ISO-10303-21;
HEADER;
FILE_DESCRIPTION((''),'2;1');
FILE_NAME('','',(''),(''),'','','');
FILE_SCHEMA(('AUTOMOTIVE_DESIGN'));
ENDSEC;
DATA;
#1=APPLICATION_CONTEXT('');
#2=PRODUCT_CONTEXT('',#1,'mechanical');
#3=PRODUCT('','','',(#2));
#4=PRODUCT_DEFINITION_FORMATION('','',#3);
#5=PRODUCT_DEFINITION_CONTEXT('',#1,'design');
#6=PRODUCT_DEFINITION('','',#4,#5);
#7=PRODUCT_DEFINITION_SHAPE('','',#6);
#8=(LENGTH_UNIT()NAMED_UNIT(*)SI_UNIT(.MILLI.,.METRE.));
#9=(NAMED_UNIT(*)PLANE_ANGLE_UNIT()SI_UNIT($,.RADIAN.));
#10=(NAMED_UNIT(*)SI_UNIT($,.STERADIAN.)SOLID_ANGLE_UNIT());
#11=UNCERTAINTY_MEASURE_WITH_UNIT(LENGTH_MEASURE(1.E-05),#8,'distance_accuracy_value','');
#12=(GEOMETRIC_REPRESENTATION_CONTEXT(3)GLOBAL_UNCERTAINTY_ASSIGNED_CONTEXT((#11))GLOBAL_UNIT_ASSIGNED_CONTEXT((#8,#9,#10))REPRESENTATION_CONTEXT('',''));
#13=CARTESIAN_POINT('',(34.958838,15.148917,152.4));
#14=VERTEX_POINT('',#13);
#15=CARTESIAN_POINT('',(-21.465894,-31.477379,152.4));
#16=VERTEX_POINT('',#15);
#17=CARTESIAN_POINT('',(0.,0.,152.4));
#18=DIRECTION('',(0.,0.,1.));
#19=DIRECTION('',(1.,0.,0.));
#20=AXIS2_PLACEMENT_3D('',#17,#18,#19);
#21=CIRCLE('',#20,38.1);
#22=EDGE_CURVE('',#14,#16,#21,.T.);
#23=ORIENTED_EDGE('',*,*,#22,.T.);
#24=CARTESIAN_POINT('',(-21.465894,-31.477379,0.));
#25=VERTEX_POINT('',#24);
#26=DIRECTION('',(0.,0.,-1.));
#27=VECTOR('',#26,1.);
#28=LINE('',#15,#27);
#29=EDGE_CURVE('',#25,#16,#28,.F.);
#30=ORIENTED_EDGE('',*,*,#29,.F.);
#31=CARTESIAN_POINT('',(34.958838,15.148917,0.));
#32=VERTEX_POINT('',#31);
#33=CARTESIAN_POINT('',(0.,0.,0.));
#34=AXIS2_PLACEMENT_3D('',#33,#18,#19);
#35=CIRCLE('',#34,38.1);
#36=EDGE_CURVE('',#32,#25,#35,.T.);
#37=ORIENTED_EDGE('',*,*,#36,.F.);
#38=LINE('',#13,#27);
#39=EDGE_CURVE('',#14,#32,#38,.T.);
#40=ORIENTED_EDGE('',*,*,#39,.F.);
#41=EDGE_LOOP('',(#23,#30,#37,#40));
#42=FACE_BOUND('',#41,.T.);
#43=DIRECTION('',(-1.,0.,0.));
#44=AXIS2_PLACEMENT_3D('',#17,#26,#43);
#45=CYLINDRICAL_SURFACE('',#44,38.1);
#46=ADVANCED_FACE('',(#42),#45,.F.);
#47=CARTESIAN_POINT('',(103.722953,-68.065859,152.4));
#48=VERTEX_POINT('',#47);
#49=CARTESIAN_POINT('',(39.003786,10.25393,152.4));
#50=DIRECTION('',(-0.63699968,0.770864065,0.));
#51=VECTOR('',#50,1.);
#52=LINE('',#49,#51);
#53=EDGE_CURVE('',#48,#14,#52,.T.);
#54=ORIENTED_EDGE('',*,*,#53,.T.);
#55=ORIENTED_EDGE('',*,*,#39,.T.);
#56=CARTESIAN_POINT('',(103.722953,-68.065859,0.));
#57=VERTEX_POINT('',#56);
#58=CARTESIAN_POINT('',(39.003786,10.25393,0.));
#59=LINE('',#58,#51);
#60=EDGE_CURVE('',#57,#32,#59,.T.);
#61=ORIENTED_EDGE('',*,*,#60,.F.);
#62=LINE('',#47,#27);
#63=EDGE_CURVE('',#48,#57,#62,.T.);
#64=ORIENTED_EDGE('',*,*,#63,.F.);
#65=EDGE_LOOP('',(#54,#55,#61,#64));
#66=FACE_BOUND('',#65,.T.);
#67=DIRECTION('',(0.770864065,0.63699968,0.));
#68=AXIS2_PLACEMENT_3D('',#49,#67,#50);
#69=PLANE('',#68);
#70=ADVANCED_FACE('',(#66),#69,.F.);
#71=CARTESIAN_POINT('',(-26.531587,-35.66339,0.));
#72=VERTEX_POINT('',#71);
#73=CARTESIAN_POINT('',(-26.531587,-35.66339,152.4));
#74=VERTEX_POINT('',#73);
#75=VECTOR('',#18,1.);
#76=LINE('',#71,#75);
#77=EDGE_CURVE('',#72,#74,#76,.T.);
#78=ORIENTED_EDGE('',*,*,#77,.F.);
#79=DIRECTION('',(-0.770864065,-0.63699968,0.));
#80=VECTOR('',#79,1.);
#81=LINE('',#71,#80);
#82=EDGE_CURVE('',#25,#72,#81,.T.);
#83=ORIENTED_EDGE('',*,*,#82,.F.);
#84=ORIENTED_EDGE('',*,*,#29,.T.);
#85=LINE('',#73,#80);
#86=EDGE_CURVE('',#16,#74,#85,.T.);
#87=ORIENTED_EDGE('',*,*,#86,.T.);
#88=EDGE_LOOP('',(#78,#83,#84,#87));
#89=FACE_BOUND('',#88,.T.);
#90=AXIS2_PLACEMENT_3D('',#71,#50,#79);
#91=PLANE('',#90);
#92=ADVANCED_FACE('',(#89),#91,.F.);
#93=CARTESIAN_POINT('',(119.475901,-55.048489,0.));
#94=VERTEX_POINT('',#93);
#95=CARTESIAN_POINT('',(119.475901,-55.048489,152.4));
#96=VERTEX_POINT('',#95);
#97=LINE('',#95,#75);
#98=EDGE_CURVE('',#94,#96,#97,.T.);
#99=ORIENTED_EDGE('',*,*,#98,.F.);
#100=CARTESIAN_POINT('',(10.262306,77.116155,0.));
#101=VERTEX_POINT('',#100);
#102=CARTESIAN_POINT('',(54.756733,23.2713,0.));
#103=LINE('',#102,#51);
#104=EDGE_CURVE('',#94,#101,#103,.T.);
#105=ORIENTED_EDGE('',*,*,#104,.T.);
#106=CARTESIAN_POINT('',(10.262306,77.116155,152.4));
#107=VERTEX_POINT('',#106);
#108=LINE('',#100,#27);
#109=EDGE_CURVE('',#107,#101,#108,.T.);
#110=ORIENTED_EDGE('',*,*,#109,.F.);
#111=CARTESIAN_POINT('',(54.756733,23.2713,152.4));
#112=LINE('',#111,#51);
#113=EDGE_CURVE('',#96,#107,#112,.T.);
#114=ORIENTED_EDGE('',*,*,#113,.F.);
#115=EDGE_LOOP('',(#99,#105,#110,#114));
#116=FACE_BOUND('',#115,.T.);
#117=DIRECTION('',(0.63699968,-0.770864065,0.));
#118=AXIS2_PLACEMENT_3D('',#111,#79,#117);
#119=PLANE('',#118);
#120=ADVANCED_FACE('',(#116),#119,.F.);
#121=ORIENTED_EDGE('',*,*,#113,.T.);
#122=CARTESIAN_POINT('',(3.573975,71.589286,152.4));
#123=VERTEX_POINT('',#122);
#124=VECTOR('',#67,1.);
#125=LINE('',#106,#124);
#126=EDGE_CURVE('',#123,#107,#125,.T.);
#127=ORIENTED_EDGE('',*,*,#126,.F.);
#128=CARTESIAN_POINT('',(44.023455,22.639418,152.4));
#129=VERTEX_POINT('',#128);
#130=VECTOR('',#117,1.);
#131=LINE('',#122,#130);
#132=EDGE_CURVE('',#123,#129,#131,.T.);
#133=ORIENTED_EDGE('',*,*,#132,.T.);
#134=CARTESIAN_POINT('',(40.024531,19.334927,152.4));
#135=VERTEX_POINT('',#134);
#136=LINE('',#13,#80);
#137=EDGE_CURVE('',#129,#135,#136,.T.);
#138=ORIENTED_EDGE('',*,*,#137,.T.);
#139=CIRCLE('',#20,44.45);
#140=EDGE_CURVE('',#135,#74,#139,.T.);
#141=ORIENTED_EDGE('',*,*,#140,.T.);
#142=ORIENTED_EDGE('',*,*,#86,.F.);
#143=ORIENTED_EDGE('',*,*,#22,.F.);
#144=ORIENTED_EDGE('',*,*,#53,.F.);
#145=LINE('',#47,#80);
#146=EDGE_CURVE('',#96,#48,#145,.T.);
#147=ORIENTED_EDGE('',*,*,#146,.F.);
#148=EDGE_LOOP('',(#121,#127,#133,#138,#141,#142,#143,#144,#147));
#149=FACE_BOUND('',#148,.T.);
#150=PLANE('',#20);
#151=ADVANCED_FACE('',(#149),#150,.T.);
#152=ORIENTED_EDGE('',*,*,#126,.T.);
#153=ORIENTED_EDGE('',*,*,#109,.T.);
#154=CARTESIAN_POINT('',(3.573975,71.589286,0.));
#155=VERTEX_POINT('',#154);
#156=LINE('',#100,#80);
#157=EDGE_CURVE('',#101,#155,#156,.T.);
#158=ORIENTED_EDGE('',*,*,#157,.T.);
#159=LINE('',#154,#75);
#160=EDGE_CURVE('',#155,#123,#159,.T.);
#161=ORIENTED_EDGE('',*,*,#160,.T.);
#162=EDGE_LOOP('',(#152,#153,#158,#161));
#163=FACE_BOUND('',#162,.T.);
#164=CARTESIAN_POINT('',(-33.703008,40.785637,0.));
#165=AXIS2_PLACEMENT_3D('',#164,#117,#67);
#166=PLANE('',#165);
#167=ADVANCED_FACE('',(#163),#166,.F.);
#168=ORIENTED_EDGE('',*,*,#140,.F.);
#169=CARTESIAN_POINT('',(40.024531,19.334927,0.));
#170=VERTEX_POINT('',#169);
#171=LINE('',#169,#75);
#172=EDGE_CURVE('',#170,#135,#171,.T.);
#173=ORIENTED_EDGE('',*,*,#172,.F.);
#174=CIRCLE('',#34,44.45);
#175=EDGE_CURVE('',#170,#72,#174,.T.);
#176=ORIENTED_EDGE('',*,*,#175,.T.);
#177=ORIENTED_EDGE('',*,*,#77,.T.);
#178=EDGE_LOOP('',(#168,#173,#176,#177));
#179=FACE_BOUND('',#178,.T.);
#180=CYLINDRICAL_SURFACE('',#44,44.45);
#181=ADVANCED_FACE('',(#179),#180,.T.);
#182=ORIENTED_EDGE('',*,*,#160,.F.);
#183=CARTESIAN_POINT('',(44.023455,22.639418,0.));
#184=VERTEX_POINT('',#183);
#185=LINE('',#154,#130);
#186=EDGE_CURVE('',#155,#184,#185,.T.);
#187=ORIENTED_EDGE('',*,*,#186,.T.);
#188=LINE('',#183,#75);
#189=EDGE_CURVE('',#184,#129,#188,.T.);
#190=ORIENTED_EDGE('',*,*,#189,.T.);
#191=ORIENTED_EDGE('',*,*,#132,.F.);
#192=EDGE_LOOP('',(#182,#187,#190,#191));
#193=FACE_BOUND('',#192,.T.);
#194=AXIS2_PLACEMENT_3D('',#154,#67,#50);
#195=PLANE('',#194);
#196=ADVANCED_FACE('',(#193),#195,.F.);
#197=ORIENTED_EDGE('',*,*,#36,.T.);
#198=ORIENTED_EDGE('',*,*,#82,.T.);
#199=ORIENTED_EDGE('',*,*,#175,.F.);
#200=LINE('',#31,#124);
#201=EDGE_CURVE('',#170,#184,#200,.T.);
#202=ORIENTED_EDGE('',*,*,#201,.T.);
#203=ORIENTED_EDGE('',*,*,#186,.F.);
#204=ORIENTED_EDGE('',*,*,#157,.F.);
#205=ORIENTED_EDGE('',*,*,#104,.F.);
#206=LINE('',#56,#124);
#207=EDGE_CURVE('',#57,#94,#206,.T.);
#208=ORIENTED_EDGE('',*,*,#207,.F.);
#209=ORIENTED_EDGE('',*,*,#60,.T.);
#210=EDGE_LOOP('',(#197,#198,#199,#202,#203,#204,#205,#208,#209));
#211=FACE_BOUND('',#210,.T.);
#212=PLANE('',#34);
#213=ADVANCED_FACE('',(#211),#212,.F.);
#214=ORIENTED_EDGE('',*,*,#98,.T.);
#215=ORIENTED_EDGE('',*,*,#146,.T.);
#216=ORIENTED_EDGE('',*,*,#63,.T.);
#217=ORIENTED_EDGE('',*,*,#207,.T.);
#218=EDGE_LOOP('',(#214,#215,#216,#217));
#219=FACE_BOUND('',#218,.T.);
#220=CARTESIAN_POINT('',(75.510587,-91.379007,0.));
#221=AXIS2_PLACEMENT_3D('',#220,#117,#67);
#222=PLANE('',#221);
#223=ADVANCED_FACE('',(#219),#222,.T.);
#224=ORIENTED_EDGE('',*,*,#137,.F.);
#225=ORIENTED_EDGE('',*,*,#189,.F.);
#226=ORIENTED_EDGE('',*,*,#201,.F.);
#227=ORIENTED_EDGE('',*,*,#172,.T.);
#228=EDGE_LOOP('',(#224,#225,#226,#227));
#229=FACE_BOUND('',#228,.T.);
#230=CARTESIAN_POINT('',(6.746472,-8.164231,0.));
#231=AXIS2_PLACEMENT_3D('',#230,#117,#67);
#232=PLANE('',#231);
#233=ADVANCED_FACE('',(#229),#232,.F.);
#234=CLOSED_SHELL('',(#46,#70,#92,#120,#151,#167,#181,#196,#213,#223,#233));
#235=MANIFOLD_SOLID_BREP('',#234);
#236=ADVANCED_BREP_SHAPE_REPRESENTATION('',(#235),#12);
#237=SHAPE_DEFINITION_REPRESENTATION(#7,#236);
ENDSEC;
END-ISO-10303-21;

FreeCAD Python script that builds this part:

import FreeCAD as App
import Part
import Sketcher

V = App.Vector
Q = App.Units.Quantity

doc = App.newDocument("Part")
body = doc.addObject("PartDesign::Body", "Body")

# Sketch on XY plane
sketch1 = body.newObject("Sketcher::SketchObject", "Sketch")
sketch1.AttachmentSupport = (doc.getObject("XY_Plane"), [""])
sketch1.MapMode = "FlatFace"
sketch1.addGeometry([
    Part.Circle(V(0, 0, 0), V(0, 0, 1), 44),
    Part.Circle(V(0, 0, 0), V(0, 0, 1), 38),
], False)
sketch1.addConstraint([
    Sketcher.Constraint("Coincident", 0, 3, -1, 1),
    Sketcher.Constraint("Coincident", 1, 3, -1, 1),
    Sketcher.Constraint("Diameter", 1, Q("3 in")),
    Sketcher.Constraint("Diameter", 0, Q("3.5 in")),
])
pad1 = body.newObject("PartDesign::Pad", "Pad")
pad1.Profile = sketch1
pad1.Length = Q("6 in")

# Sketch on XY plane
sketch2 = body.newObject("Sketcher::SketchObject", "Sketch001")
sketch2.AttachmentSupport = (doc.getObject("XY_Plane"), [""])
sketch2.MapMode = "FlatFace"
sketch2.AttachmentOffset = App.Placement(V(0, 0, 6 * 25.4), App.Rotation())
sketch2.addGeometry([
    Part.LineSegment(V(40, 19, 0), V(-27, -36, 0)),
    Part.LineSegment(V(-27, -36, 0), V(-10, -86, 0)),
    Part.LineSegment(V(-10, -86, 0), V(76, -16, 0)),
    Part.LineSegment(V(76, -16, 0), V(40, 19, 0)),
], False)
sketch2.addConstraint([
    Sketcher.Constraint("Coincident", 0, 2, 1, 1),
    Sketcher.Constraint("Coincident", 1, 2, 2, 1),
    Sketcher.Constraint("Coincident", 2, 2, 3, 1),
    Sketcher.Constraint("Coincident", 3, 2, 0, 1),
    Sketcher.Constraint("Parallel", 0, 2),
    Sketcher.Constraint("Distance", 0, Q("86.33963 mm")),
    Sketcher.Constraint("DistanceY", 0, 2, -1, 1, Q("35.66339 mm")),
    Sketcher.Constraint("DistanceX", 1, 2, -1, 1, Q("9.866811 mm")),
    Sketcher.Constraint("DistanceX", -1, 1, 2, 2, Q("75.854578 mm")),
    Sketcher.Constraint("DistanceY", 2, 2, -1, 1, Q("15.63885 mm")),
    Sketcher.Constraint("DistanceX", -1, 1, 3, 2, Q("40.024531 mm")),
    Sketcher.Constraint("DistanceX", 0, 2, 3, 2, Q("66.556119 mm")),
])
pocket1 = body.newObject("PartDesign::Pocket", "Pocket")
pocket1.Profile = sketch2
pocket1.Length = Q("6 in")

# Sketch on an angled plane
sketch3 = body.newObject("Sketcher::SketchObject", "Sketch002")
sketch3.Placement = App.Placement(V(6.746472, -8.164231, 0), App.Rotation(V(-0.770864065, -0.63699968, 0), V(0, 0, -0.999999999), V(0.63699968, -0.770864065, 0), "ZXY"))
sketch3.addGeometry([
    Part.LineSegment(V(-57, 0, 0), V(-57, -152, 0)),
    Part.LineSegment(V(-57, -152, 0), V(-37, -152, 0)),
    Part.LineSegment(V(-37, -152, 0), V(-37, 0, 0)),
    Part.LineSegment(V(-37, 0, 0), V(-57, 0, 0)),
], False)
sketch3.addConstraint([
    Sketcher.Constraint("Coincident", 0, 2, 1, 1),
    Sketcher.Constraint("Coincident", 1, 2, 2, 1),
    Sketcher.Constraint("Coincident", 2, 2, 3, 1),
    Sketcher.Constraint("Coincident", 3, 2, 0, 1),
    Sketcher.Constraint("Vertical", 0),
    Sketcher.Constraint("Horizontal", 1),
    Sketcher.Constraint("Vertical", 2),
    Sketcher.Constraint("Horizontal", 3),
    Sketcher.Constraint("PointOnObject", 2, 2, -1),
    Sketcher.Constraint("DistanceY", 0, 2, 0, 1, Q("6 in")),
    Sketcher.Constraint("DistanceX", 1, 1, 1, 2, Q("20.435442 mm")),
    Sketcher.Constraint("DistanceX", 0, 2, -1, 1, Q("57.033809 mm")),
])
pad2 = body.newObject("PartDesign::Pad", "Pad001")
pad2.Profile = sketch3
pad2.Length = Q("0.25 in")

# Sketch on an angled plane
sketch4 = body.newObject("Sketcher::SketchObject", "Sketch003")
sketch4.Placement = App.Placement(V(6.746472, -8.164231, 0), App.Rotation(V(0.770864065, 0.63699968, 0), V(0, 0, -0.999999999), V(-0.63699968, 0.770864065, 0), "ZXY"))
sketch4.addGeometry([
    Part.LineSegment(V(48, 0, 0), V(48, -152, 0)),
    Part.LineSegment(V(48, -152, 0), V(57, -152, 0)),
    Part.LineSegment(V(57, -152, 0), V(57, 0, 0)),
    Part.LineSegment(V(57, 0, 0), V(48, 0, 0)),
], False)
sketch4.addConstraint([
    Sketcher.Constraint("Coincident", 0, 2, 1, 1),
    Sketcher.Constraint("Coincident", 1, 2, 2, 1),
    Sketcher.Constraint("Coincident", 2, 2, 3, 1),
    Sketcher.Constraint("Coincident", 3, 2, 0, 1),
    Sketcher.Constraint("Vertical", 0),
    Sketcher.Constraint("Horizontal", 1),
    Sketcher.Constraint("Vertical", 2),
    Sketcher.Constraint("Horizontal", 3),
    Sketcher.Constraint("PointOnObject", 2, 2, -1),
    Sketcher.Constraint("DistanceY", 0, 2, 0, 1, Q("6 in")),
    Sketcher.Constraint("DistanceX", -1, 1, 0, 2, Q("48.357402 mm")),
    Sketcher.Constraint("DistanceX", 1, 1, 1, 2, Q("8.676407 mm")),
])
pad3 = body.newObject("PartDesign::Pad", "Pad002")
pad3.Profile = sketch4
pad3.Length = Q("2.5 in")

# Sketch on an angled plane
sketch5 = body.newObject("Sketcher::SketchObject", "Sketch004")
sketch5.Placement = App.Placement(V(10.79142, -13.059218, 0), App.Rotation(V(0.770864065, 0.63699968, 0), V(0, 0, 0.999999999), V(0.63699968, -0.770864065, 0), "ZXY"))
sketch5.addGeometry([
    Part.LineSegment(V(37, 152, 0), V(37, 0, 0)),
    Part.LineSegment(V(37, 0, 0), V(57, 0, 0)),
    Part.LineSegment(V(57, 0, 0), V(57, 152, 0)),
    Part.LineSegment(V(57, 152, 0), V(37, 152, 0)),
], False)
sketch5.addConstraint([
    Sketcher.Constraint("Coincident", 0, 2, 1, 1),
    Sketcher.Constraint("Coincident", 1, 2, 2, 1),
    Sketcher.Constraint("Coincident", 2, 2, 3, 1),
    Sketcher.Constraint("Coincident", 3, 2, 0, 1),
    Sketcher.Constraint("Vertical", 0),
    Sketcher.Constraint("Horizontal", 1),
    Sketcher.Constraint("Vertical", 2),
    Sketcher.Constraint("Horizontal", 3),
    Sketcher.Constraint("PointOnObject", 0, 2, -1),
    Sketcher.Constraint("DistanceY", 0, 2, 0, 1, Q("6 in")),
    Sketcher.Constraint("DistanceX", 1, 1, 1, 2, Q("20.435442 mm")),
    Sketcher.Constraint("DistanceX", -1, 1, 1, 2, Q("57.033809 mm")),
])
pad4 = body.newObject("PartDesign::Pad", "Pad003")
pad4.Profile = sketch5
pad4.Length = Q("4 in")

doc.recompute()
